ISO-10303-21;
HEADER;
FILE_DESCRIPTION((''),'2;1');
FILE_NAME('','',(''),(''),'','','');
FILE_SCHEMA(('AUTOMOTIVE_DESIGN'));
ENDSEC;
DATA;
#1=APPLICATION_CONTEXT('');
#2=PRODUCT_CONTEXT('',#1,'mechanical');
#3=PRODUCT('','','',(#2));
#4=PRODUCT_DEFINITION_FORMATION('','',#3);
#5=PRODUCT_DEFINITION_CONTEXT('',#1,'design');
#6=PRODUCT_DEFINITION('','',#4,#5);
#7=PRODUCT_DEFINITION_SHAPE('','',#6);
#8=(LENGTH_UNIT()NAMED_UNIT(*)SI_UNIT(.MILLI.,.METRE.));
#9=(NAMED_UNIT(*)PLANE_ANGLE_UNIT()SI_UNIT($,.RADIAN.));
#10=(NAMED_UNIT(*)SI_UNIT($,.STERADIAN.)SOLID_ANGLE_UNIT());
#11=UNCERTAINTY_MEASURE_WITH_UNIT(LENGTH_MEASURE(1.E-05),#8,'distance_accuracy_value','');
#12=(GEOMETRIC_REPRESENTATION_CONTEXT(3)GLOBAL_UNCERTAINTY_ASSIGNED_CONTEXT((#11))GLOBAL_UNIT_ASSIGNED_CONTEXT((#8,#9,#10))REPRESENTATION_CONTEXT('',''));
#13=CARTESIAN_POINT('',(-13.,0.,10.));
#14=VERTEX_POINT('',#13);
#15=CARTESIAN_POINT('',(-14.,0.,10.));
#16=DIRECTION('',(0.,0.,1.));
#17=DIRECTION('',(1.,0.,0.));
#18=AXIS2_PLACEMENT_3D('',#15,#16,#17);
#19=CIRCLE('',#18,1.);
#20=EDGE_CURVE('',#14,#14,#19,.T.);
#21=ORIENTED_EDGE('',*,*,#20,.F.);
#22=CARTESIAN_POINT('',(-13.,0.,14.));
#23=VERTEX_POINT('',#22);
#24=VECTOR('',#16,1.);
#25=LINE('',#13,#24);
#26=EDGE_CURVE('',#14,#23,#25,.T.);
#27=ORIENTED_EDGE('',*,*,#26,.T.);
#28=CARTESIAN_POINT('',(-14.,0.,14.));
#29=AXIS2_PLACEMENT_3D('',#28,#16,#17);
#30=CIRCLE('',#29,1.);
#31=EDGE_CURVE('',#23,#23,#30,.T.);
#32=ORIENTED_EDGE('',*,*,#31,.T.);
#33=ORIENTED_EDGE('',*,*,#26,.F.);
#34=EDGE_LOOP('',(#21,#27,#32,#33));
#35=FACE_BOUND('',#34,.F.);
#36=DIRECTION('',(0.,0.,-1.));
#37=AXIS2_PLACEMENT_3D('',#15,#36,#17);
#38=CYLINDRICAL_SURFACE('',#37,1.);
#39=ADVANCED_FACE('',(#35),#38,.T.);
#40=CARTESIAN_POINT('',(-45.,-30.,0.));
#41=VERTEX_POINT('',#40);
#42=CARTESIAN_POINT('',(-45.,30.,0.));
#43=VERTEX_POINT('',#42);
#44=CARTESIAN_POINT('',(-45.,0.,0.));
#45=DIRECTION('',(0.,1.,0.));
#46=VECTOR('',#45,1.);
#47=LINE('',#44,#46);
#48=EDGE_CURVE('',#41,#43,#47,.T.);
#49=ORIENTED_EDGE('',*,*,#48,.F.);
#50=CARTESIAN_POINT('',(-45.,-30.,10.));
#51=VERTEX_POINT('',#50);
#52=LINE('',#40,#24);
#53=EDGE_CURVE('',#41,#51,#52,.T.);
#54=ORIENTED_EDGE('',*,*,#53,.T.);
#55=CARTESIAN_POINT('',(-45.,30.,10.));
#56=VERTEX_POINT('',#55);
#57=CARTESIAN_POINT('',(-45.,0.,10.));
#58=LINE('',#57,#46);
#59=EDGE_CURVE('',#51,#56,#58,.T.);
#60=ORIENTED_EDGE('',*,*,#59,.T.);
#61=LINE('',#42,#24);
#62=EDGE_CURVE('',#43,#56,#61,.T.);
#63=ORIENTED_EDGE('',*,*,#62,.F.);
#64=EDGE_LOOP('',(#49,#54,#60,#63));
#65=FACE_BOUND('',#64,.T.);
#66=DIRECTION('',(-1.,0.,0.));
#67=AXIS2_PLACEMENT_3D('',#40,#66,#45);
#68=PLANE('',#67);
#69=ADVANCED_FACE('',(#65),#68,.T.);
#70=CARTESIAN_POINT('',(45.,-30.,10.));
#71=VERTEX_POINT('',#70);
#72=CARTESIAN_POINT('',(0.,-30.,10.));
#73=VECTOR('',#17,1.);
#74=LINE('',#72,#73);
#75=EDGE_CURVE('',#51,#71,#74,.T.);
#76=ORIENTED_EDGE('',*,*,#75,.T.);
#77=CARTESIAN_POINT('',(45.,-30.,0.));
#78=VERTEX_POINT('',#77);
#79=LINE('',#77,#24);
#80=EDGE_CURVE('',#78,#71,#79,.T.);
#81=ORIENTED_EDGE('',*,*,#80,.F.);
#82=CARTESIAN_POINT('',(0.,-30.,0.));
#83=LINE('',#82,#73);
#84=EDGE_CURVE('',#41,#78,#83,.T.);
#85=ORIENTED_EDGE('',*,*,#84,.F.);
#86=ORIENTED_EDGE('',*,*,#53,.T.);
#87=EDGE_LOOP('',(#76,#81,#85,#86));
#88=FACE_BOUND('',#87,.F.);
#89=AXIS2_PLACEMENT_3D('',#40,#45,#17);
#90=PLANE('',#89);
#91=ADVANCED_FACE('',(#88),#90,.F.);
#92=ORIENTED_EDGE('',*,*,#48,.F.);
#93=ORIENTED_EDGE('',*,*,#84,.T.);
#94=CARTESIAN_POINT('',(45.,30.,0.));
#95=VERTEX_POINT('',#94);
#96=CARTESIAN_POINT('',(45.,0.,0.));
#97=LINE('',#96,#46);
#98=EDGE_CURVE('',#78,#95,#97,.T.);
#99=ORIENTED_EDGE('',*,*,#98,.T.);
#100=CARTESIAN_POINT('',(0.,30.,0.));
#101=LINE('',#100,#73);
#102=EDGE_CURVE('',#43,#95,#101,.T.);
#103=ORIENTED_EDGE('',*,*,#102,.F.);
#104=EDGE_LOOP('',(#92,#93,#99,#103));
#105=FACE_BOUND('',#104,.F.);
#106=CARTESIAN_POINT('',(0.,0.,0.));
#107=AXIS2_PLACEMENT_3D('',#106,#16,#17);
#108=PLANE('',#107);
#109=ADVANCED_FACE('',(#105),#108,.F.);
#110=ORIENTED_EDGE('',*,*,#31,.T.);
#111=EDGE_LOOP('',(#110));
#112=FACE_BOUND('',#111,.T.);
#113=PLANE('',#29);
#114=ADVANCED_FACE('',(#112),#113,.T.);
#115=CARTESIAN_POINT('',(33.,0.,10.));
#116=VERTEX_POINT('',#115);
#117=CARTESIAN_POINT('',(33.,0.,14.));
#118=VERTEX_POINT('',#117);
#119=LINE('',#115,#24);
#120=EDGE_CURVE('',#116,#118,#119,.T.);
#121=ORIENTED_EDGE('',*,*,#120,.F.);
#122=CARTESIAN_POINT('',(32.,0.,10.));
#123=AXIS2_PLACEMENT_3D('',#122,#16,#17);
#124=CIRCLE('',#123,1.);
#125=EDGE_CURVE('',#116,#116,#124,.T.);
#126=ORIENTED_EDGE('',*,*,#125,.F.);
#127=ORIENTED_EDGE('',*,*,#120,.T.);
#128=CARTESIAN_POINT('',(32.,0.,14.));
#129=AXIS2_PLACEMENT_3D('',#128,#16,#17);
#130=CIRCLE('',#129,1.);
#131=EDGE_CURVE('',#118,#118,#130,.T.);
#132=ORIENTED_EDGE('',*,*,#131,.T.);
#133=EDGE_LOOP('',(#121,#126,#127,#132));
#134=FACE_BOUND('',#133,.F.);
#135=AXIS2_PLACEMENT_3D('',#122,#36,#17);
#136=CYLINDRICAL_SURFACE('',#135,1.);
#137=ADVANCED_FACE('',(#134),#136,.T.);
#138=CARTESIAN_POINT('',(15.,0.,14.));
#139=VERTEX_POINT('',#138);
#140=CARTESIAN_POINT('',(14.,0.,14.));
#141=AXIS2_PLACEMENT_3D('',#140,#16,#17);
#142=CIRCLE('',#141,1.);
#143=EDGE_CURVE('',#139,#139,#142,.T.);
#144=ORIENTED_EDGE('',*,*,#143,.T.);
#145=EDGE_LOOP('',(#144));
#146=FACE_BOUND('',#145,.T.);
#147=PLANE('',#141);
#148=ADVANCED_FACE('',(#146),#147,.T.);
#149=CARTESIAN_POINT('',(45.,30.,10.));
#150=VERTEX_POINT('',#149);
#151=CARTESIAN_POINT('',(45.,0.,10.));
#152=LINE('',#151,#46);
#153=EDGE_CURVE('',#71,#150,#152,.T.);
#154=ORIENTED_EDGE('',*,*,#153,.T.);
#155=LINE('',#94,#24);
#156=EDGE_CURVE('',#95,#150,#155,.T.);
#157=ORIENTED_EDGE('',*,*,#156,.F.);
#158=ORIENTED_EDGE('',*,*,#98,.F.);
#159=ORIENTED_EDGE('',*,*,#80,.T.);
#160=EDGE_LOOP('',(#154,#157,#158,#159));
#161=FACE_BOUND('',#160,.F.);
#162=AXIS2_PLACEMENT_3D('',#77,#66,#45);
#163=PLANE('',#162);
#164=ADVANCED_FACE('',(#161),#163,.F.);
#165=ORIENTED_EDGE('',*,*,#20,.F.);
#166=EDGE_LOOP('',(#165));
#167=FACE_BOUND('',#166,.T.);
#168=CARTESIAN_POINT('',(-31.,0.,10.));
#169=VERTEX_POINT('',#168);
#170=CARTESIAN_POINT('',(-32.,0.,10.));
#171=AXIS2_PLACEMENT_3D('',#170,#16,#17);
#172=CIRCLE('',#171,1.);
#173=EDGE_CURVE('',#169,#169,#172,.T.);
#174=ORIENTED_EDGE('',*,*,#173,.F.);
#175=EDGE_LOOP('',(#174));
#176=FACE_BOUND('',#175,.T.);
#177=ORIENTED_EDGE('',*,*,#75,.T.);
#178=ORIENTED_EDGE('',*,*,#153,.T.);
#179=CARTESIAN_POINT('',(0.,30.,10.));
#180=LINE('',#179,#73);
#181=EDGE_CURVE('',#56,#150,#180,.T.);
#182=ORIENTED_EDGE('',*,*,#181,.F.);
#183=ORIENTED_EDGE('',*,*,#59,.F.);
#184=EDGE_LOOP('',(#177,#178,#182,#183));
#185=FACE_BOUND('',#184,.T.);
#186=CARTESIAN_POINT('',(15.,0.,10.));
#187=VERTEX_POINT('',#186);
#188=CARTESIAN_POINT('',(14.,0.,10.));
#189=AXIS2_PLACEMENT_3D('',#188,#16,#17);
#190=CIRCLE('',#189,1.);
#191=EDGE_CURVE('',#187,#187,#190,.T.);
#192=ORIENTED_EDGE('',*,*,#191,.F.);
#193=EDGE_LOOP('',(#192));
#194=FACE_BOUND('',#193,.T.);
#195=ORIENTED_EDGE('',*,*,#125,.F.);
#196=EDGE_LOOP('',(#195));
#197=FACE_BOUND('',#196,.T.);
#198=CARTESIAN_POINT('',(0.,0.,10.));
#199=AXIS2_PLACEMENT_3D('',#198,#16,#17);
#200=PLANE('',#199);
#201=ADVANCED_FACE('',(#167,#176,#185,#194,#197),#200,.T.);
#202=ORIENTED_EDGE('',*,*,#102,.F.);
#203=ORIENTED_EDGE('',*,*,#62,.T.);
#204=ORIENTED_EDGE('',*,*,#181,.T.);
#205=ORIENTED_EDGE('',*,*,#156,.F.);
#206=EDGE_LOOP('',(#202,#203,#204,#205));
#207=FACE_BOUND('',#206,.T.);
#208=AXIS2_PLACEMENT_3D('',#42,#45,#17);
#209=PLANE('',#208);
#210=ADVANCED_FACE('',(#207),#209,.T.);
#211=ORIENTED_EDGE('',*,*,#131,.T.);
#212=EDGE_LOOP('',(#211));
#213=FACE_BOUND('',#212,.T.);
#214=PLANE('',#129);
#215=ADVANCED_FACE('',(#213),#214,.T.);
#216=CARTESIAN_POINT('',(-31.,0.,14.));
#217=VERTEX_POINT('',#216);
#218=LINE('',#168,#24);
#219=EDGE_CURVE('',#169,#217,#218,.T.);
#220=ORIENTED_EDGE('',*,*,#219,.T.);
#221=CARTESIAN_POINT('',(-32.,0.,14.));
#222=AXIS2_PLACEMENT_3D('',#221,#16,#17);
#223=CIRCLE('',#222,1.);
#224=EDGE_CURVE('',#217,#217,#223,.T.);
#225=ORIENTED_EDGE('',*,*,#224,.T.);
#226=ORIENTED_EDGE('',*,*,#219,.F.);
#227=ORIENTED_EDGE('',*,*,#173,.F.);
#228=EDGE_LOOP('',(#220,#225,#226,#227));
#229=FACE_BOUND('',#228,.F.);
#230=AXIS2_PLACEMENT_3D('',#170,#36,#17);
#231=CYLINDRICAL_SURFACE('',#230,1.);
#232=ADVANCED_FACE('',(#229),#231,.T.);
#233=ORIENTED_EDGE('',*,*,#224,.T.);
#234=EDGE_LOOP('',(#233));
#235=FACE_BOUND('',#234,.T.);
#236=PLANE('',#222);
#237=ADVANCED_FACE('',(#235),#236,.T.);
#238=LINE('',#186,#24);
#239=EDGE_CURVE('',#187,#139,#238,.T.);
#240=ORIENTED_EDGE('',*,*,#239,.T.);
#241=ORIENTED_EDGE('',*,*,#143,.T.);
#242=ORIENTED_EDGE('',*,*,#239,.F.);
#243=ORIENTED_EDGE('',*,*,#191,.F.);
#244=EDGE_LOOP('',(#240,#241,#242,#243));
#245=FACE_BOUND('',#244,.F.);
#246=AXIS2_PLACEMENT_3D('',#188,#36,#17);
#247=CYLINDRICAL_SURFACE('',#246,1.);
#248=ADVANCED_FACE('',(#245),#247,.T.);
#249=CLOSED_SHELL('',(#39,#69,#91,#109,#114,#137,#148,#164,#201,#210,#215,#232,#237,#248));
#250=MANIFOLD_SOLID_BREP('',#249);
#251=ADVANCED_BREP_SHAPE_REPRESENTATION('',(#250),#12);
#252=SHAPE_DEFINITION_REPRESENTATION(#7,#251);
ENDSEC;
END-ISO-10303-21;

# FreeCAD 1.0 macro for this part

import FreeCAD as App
import Part
import Sketcher
from FreeCAD import Vector

doc = App.newDocument("Part")
body = doc.addObject("PartDesign::Body", "Body")

sketch1 = body.newObject("Sketcher::SketchObject", "Sketch")
sketch1.AttachmentSupport = (doc.getObject("XY_Plane"), [""])
sketch1.MapMode = "FlatFace"
sketch1.addGeometry(Part.LineSegment(Vector(-45, 30, 0), Vector(-45, -30, 0)), False)
sketch1.addGeometry(Part.LineSegment(Vector(-45, -30, 0), Vector(45, -30, 0)), False)
sketch1.addGeometry(Part.LineSegment(Vector(45, -30, 0), Vector(45, 30, 0)), False)
sketch1.addGeometry(Part.LineSegment(Vector(45, 30, 0), Vector(-45, 30, 0)), False)
sketch1.addConstraint(Sketcher.Constraint("Coincident", 0, 2, 1, 1))
sketch1.addConstraint(Sketcher.Constraint("Coincident", 1, 2, 2, 1))
sketch1.addConstraint(Sketcher.Constraint("Coincident", 2, 2, 3, 1))
sketch1.addConstraint(Sketcher.Constraint("Coincident", 3, 2, 0, 1))
sketch1.addConstraint(Sketcher.Constraint("Vertical", 0))
sketch1.addConstraint(Sketcher.Constraint("Horizontal", 1))
sketch1.addConstraint(Sketcher.Constraint("Vertical", 2))
sketch1.addConstraint(Sketcher.Constraint("Horizontal", 3))
sketch1.addConstraint(Sketcher.Constraint("Symmetric", 0, 2, 2, 2, -1, 1))
sketch1.addConstraint(Sketcher.Constraint("DistanceX", 1, 1, 1, 2, 90.0))
sketch1.addConstraint(Sketcher.Constraint("DistanceY", 0, 2, 0, 1, 60.0))
pad1 = body.newObject("PartDesign::Pad", "Pad")
pad1.Profile = sketch1
pad1.Length = 10

sketch2 = body.newObject("Sketcher::SketchObject", "Sketch001")
sketch2.AttachmentSupport = (doc.getObject("XY_Plane"), [""])
sketch2.MapMode = "FlatFace"
sketch2.AttachmentOffset = App.Placement(Vector(0, 0, 10), App.Rotation())
sketch2.addGeometry(Part.Circle(Vector(-14, 0, 0), Vector(0, 0, 1), 1), False)
sketch2.addGeometry(Part.Circle(Vector(14, 0, 0), Vector(0, 0, 1), 1), False)
sketch2.addGeometry(Part.Circle(Vector(-32, 0, 0), Vector(0, 0, 1), 1), False)
sketch2.addGeometry(Part.Circle(Vector(32, 0, 0), Vector(0, 0, 1), 1), False)
sketch2.addConstraint(Sketcher.Constraint("Equal", 0, 1))
sketch2.addConstraint(Sketcher.Constraint("Equal", 1, 2))
sketch2.addConstraint(Sketcher.Constraint("Equal", 2, 3))
sketch2.addConstraint(Sketcher.Constraint("Symmetric", 0, 3, 1, 3, -1, 1))
sketch2.addConstraint(Sketcher.Constraint("Symmetric", 2, 3, 3, 3, -1, 1))
sketch2.addConstraint(Sketcher.Constraint("PointOnObject", 0, 3, -1))
sketch2.addConstraint(Sketcher.Constraint("PointOnObject", 2, 3, -1))
sketch2.addConstraint(Sketcher.Constraint("Diameter", 0, 2.0))
sketch2.addConstraint(Sketcher.Constraint("DistanceX", 0, 3, -1, 1, 14.0))
sketch2.addConstraint(Sketcher.Constraint("DistanceX", 2, 3, -1, 1, 32.0))
pad2 = body.newObject("PartDesign::Pad", "Pad001")
pad2.Profile = sketch2
pad2.Length = 4

doc.recompute()
